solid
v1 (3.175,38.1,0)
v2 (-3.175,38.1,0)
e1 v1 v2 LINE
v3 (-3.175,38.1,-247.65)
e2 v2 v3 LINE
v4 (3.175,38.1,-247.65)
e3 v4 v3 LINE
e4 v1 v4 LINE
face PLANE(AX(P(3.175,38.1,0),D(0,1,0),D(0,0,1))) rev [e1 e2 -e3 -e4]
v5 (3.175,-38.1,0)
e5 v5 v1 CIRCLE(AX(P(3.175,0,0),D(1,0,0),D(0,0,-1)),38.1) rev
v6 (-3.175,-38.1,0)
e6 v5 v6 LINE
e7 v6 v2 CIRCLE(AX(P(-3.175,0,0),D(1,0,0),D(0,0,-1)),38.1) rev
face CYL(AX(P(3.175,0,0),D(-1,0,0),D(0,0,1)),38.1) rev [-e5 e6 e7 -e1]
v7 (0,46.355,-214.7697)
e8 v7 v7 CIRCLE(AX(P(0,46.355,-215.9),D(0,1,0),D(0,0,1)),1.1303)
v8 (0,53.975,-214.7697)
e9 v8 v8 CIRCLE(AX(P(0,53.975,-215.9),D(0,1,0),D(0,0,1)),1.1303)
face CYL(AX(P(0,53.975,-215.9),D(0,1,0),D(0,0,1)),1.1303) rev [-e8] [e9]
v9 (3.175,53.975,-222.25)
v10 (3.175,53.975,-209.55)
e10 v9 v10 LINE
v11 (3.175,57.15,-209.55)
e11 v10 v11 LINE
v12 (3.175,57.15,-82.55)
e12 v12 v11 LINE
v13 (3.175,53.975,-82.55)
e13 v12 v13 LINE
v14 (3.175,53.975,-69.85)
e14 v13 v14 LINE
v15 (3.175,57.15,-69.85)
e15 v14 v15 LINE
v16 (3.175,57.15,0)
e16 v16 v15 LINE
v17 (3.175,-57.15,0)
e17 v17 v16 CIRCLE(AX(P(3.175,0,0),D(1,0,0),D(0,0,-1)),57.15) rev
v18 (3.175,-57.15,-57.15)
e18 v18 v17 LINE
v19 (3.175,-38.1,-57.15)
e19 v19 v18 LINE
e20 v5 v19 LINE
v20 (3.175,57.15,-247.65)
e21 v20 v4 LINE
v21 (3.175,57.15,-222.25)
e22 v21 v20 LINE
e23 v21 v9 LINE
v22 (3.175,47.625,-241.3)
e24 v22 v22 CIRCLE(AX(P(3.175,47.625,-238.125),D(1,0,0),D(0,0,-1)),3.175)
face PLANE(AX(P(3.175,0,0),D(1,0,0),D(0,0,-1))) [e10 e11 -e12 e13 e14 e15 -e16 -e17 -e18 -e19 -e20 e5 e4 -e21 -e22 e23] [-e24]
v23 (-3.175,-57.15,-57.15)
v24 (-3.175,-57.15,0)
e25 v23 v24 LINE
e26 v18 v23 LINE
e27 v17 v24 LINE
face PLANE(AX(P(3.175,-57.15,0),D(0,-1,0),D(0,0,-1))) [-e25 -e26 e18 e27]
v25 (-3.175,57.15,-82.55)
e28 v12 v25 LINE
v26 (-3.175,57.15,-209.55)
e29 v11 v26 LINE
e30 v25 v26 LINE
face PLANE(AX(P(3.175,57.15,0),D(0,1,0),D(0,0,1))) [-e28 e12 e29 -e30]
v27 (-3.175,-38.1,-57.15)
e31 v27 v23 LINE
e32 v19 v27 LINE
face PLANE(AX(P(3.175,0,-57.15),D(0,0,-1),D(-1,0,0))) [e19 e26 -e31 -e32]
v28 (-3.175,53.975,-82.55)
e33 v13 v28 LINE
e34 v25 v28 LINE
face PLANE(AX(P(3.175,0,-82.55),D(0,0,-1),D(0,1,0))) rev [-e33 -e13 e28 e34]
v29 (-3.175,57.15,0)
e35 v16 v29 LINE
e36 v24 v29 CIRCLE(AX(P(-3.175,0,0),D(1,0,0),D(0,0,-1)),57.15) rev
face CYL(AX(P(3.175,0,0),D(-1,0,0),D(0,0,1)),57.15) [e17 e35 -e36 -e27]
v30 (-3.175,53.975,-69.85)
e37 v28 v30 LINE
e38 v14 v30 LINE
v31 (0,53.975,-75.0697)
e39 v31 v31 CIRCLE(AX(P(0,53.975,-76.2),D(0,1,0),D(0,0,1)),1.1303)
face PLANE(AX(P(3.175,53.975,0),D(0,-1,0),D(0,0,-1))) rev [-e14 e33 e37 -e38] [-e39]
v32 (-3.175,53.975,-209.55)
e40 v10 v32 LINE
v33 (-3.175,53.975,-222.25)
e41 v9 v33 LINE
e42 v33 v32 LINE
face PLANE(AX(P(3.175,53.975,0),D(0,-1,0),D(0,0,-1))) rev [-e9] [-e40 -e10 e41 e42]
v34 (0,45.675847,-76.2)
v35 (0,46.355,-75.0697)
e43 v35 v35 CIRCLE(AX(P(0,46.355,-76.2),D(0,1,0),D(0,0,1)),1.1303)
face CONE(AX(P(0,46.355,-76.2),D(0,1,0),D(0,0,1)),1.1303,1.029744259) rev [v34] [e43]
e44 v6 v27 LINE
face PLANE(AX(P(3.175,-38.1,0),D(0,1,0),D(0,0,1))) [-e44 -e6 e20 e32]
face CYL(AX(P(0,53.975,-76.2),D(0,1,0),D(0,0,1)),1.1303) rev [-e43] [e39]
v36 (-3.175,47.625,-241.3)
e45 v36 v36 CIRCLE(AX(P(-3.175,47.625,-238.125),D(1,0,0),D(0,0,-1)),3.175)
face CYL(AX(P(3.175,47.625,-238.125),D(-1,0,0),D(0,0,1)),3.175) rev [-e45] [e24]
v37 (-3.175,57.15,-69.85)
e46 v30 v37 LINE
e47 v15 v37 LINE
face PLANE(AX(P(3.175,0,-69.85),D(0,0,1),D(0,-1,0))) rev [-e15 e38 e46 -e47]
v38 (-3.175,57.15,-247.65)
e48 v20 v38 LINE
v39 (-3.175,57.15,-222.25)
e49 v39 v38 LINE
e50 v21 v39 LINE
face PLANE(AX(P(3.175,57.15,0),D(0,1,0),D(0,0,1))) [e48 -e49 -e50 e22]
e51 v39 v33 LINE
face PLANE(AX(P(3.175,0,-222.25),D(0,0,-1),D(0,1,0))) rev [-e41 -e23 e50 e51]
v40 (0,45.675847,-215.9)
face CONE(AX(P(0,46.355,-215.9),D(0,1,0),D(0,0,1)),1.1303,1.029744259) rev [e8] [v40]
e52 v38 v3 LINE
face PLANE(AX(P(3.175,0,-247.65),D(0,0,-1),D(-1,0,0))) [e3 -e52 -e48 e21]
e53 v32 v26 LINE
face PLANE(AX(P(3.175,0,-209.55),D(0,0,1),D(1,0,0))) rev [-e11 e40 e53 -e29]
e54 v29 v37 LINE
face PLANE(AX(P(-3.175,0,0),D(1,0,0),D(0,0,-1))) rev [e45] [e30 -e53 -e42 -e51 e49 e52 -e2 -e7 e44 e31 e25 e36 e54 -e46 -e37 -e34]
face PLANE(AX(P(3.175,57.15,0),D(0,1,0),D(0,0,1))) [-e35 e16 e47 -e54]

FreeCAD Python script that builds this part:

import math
import FreeCAD as App
import Part
import Sketcher
Q = App.Units.Quantity

doc = App.newDocument("Part")
body = doc.addObject("PartDesign::Body", "Body")

sketch1 = body.newObject("Sketcher::SketchObject", "Sketch")
sketch1.AttachmentSupport = (doc.getObject("YZ_Plane"), [""])
sketch1.MapMode = "FlatFace"
sketch1.addGeometry([
    Part.LineSegment(App.Vector(-38.1, -57.1, 0), App.Vector(-38.1, 0, 0)),
    Part.ArcOfCircle(Part.Circle(App.Vector(0, 0, 0), App.Vector(0, 0, 1), 38.1), math.radians(0), math.radians(180)),
    Part.LineSegment(App.Vector(38.1, 0, 0), App.Vector(38.1, -247.7, 0)),
    Part.LineSegment(App.Vector(38.1, -247.7, 0), App.Vector(57.1, -247.7, 0)),
    Part.LineSegment(App.Vector(57.1, -247.7, 0), App.Vector(57.1, -222.2, 0)),
    Part.LineSegment(App.Vector(57.1, -222.2, 0), App.Vector(54, -222.2, 0)),
    Part.LineSegment(App.Vector(54, -222.2, 0), App.Vector(54, -209.6, 0)),
    Part.LineSegment(App.Vector(54, -209.6, 0), App.Vector(57.1, -209.6, 0)),
    Part.LineSegment(App.Vector(57.1, -209.6, 0), App.Vector(57.1, -82.5, 0)),
    Part.LineSegment(App.Vector(57.1, -82.5, 0), App.Vector(54, -82.5, 0)),
    Part.LineSegment(App.Vector(54, -82.5, 0), App.Vector(54, -69.8, 0)),
    Part.LineSegment(App.Vector(54, -69.8, 0), App.Vector(57.1, -69.8, 0)),
    Part.LineSegment(App.Vector(57.1, -69.8, 0), App.Vector(57.1, 0, 0)),
    Part.ArcOfCircle(Part.Circle(App.Vector(0, 0, 0), App.Vector(0, 0, 1), 57.1), math.radians(0), math.radians(180)),
    Part.LineSegment(App.Vector(-57.1, 0, 0), App.Vector(-57.1, -57.1, 0)),
    Part.LineSegment(App.Vector(-57.1, -57.1, 0), App.Vector(-38.1, -57.1, 0)),
    Part.Circle(App.Vector(47.6, -238.1, 0), App.Vector(0, 0, 1), 3.2),
], False)
sketch1.addConstraint([
    Sketcher.Constraint("Tangent", 0, 2, 1, 2),
    Sketcher.Constraint("Tangent", 1, 1, 2, 1),
    Sketcher.Constraint("Coincident", 2, 2, 3, 1),
    Sketcher.Constraint("Coincident", 3, 2, 4, 1),
    Sketcher.Constraint("Coincident", 4, 2, 5, 1),
    Sketcher.Constraint("Coincident", 5, 2, 6, 1),
    Sketcher.Constraint("Coincident", 6, 2, 7, 1),
    Sketcher.Constraint("Coincident", 7, 2, 8, 1),
    Sketcher.Constraint("Coincident", 8, 2, 9, 1),
    Sketcher.Constraint("Coincident", 9, 2, 10, 1),
    Sketcher.Constraint("Coincident", 10, 2, 11, 1),
    Sketcher.Constraint("Coincident", 11, 2, 12, 1),
    Sketcher.Constraint("Tangent", 12, 2, 13, 1),
    Sketcher.Constraint("Tangent", 13, 2, 14, 1),
    Sketcher.Constraint("Coincident", 14, 2, 15, 1),
    Sketcher.Constraint("Coincident", 15, 2, 0, 1),
    Sketcher.Constraint("Vertical", 0),
    Sketcher.Constraint("Vertical", 2),
    Sketcher.Constraint("Horizontal", 3),
    Sketcher.Constraint("Vertical", 4),
    Sketcher.Constraint("Horizontal", 5),
    Sketcher.Constraint("Vertical", 6),
    Sketcher.Constraint("Horizontal", 7),
    Sketcher.Constraint("Vertical", 8),
    Sketcher.Constraint("Horizontal", 9),
    Sketcher.Constraint("Vertical", 10),
    Sketcher.Constraint("Horizontal", 11),
    Sketcher.Constraint("Vertical", 12),
    Sketcher.Constraint("Vertical", 14),
    Sketcher.Constraint("Horizontal", 15),
    Sketcher.Constraint("Coincident", 1, 3, -1, 1),
    Sketcher.Constraint("Coincident", 13, 3, -1, 1),
    Sketcher.Constraint("Vertical", 4, 2, 7, 2),
    Sketcher.Constraint("Vertical", 6, 2, 9, 2),
    Sketcher.Constraint("Vertical", 8, 2, 11, 2),
    Sketcher.Constraint("Equal", 6, 10),
    Sketcher.Constraint("Radius", 1, Q("1.5 in")),
    Sketcher.Constraint("Diameter", 16, Q("0.25 in")),
    Sketcher.Constraint("DistanceY", 4, 1, 4, 2, Q("1 in")),
    Sketcher.Constraint("DistanceY", 8, 1, 8, 2, Q("5 in")),
    Sketcher.Constraint("Radius", 13, Q("2.25 in")),
    Sketcher.Constraint("DistanceY", 6, 1, 6, 2, Q("0.5 in")),
    Sketcher.Constraint("DistanceY", 0, 1, 0, 2, Q("2.25 in")),
    Sketcher.Constraint("DistanceY", 2, 2, 2, 1, Q("9.75 in")),
    Sketcher.Constraint("DistanceX", 5, 2, 5, 1, Q("0.125 in")),
    Sketcher.Constraint("DistanceX", 16, 3, 5, 2, Q("0.25 in")),
    Sketcher.Constraint("DistanceY", 16, 3, -1, 1, Q("9.375 in")),
])
pad1 = body.newObject("PartDesign::Pad", "Pad")
pad1.Profile = sketch1
pad1.Length = Q("0.25 in")
pad1.Midplane = True

sketch2 = body.newObject("Sketcher::SketchObject", "Sketch001")
sketch2.AttachmentSupport = (doc.getObject("XZ_Plane"), [""])
sketch2.MapMode = "FlatFace"
sketch2.AttachmentOffset = App.Placement(App.Vector(0, 0, -2.125 * 25.4), App.Rotation())
sketch2.addGeometry([
    Part.Circle(App.Vector(0, -76.2, 0), App.Vector(0, 0, 1), 1.1),
    Part.Circle(App.Vector(0, -215.9, 0), App.Vector(0, 0, 1), 1.1),
], False)
sketch2.addConstraint([
    Sketcher.Constraint("Equal", 0, 1),
    Sketcher.Constraint("PointOnObject", 0, 3, -2),
    Sketcher.Constraint("PointOnObject", 1, 3, -2),
    Sketcher.Constraint("Diameter", 0, Q("0.089 in")),
    Sketcher.Constraint("DistanceY", 0, 3, -1, 1, Q("3 in")),
    Sketcher.Constraint("DistanceY", 1, 3, -1, 1, Q("8.5 in")),
])
doc.recompute()
hole = body.newObject("PartDesign::Hole", "Hole")
hole.Profile = sketch2
hole.ThreadType = "None"
hole.Diameter = Q("0.089 in")
hole.DepthType = "Dimension"
hole.Depth = Q("0.3 in")
hole.DrillPoint = "Angled"
hole.DrillPointAngle = 118
hole.Reversed = True

doc.recompute()
